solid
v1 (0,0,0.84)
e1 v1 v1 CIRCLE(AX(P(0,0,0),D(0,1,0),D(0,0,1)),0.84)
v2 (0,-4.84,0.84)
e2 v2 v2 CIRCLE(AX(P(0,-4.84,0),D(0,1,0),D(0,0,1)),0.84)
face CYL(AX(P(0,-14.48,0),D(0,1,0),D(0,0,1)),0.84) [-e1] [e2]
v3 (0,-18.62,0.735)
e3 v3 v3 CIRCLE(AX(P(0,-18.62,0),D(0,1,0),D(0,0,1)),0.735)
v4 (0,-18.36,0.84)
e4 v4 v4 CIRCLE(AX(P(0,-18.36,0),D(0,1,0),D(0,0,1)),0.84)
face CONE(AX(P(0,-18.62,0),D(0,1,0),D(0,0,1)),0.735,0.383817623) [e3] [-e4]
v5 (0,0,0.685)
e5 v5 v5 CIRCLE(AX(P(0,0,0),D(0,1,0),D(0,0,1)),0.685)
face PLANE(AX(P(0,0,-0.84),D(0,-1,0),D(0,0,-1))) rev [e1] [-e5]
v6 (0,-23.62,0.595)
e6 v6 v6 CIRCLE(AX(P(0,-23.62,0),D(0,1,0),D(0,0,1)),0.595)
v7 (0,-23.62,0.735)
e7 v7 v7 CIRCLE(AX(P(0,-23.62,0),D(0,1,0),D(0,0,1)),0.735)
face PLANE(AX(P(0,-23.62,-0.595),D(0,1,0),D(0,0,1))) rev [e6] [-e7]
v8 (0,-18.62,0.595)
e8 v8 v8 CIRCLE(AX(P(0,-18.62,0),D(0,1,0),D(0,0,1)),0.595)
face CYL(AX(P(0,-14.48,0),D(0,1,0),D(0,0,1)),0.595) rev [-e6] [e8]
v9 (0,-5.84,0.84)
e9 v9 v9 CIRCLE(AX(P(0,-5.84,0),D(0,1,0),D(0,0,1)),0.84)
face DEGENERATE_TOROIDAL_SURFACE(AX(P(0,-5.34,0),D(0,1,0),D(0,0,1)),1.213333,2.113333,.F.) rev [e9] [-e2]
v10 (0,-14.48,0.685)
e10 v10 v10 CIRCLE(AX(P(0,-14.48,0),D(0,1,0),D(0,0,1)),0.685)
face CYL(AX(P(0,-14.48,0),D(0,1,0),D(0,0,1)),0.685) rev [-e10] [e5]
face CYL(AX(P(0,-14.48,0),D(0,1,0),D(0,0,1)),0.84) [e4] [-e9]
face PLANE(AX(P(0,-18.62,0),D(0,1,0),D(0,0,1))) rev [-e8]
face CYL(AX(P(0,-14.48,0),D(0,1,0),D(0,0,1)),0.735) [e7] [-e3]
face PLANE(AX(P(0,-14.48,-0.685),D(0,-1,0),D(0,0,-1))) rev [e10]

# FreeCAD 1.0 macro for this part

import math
import FreeCAD as App
import Part
import Sketcher

doc = App.newDocument("Part")
body = doc.addObject("PartDesign::Body", "Body")

sketch1 = doc.addObject("Sketcher::SketchObject", "Sketch")
body.addObject(sketch1)
sketch1.AttachmentSupport = (doc.YZ_Plane, [""])
sketch1.MapMode = "FlatFace"
sketch1.addGeometry([
    Part.LineSegment(App.Vector(0, -0.685, 0), App.Vector(-14.48, -0.685, 0)),
    Part.LineSegment(App.Vector(-14.48, -0.685, 0), App.Vector(-14.48, 0, 0)),
    Part.LineSegment(App.Vector(-14.48, 0, 0), App.Vector(-18.62, 0, 0)),
    Part.LineSegment(App.Vector(-18.62, 0, 0), App.Vector(-18.62, -0.595, 0)),
    Part.LineSegment(App.Vector(-18.62, -0.595, 0), App.Vector(-23.62, -0.595, 0)),
    Part.LineSegment(App.Vector(-23.62, -0.595, 0), App.Vector(-23.62, -0.735, 0)),
    Part.LineSegment(App.Vector(-23.62, -0.735, 0), App.Vector(-18.62, -0.735, 0)),
    Part.LineSegment(App.Vector(-18.62, -0.735, 0), App.Vector(-18.36, -0.84, 0)),
    Part.LineSegment(App.Vector(-18.36, -0.84, 0), App.Vector(-5.84, -0.84, 0)),
    Part.ArcOfCircle(Part.Circle(App.Vector(-5.34, 1.213333, 0), App.Vector(0, 0, 1), 2.113333), math.radians(-103.685547), math.radians(-76.314453)),
    Part.LineSegment(App.Vector(-4.84, -0.84, 0), App.Vector(0, -0.84, 0)),
    Part.LineSegment(App.Vector(0, -0.84, 0), App.Vector(0, -0.685, 0)),
], False)
sketch1.addConstraint([
    Sketcher.Constraint("Coincident", 0, 2, 1, 1),
    Sketcher.Constraint("Coincident", 1, 2, 2, 1),
    Sketcher.Constraint("Coincident", 2, 2, 3, 1),
    Sketcher.Constraint("Coincident", 3, 2, 4, 1),
    Sketcher.Constraint("Coincident", 4, 2, 5, 1),
    Sketcher.Constraint("Coincident", 5, 2, 6, 1),
    Sketcher.Constraint("Coincident", 6, 2, 7, 1),
    Sketcher.Constraint("Coincident", 7, 2, 8, 1),
    Sketcher.Constraint("Coincident", 8, 2, 9, 1),
    Sketcher.Constraint("Coincident", 9, 2, 10, 1),
    Sketcher.Constraint("Coincident", 10, 2, 11, 1),
    Sketcher.Constraint("Coincident", 11, 2, 0, 1),
    Sketcher.Constraint("Horizontal", 0),
    Sketcher.Constraint("Vertical", 1),
    Sketcher.Constraint("Horizontal", 2),
    Sketcher.Constraint("Vertical", 3),
    Sketcher.Constraint("Horizontal", 4),
    Sketcher.Constraint("Vertical", 5),
    Sketcher.Constraint("Horizontal", 6),
    Sketcher.Constraint("Horizontal", 8),
    Sketcher.Constraint("Horizontal", 10),
    Sketcher.Constraint("Vertical", 11),
    Sketcher.Constraint("PointOnObject", 1, 2, -1),
    Sketcher.Constraint("PointOnObject", 10, 2, -2),
    Sketcher.Constraint("Horizontal", 8, 2, 9, 2),
    Sketcher.Constraint("Vertical", 3, 2, 6, 2),
    Sketcher.Constraint("DistanceX", 4, 2, 4, 1, 5.0),
    Sketcher.Constraint("DistanceX", 8, 2, 9, 2, 1.0),
    Sketcher.Constraint("DistanceX", 0, 2, 0, 1, 14.48),
    Sketcher.Constraint("DistanceX", 2, 2, 2, 1, 4.14),
    Sketcher.Constraint("DistanceX", 8, 1, 8, 2, 12.52),
    Sketcher.Constraint("DistanceX", 10, 1, 10, 2, 4.84),
    Sketcher.Constraint("DistanceY", 5, 2, 5, 1, 0.14),
    Sketcher.Constraint("DistanceY", 1, 1, 1, 2, 0.685),
    Sketcher.Constraint("DistanceY", 3, 2, 3, 1, 0.595),
    Sketcher.Constraint("DistanceY", 11, 1, 11, 2, 0.155),
    Sketcher.Constraint("Radius", 9, 2.113333),
])
revolution = doc.addObject("PartDesign::Revolution", "Revolution")
body.addObject(revolution)
revolution.Profile = sketch1
revolution.ReferenceAxis = (sketch1, ["H_Axis"])
revolution.Angle = 360

doc.recompute()
